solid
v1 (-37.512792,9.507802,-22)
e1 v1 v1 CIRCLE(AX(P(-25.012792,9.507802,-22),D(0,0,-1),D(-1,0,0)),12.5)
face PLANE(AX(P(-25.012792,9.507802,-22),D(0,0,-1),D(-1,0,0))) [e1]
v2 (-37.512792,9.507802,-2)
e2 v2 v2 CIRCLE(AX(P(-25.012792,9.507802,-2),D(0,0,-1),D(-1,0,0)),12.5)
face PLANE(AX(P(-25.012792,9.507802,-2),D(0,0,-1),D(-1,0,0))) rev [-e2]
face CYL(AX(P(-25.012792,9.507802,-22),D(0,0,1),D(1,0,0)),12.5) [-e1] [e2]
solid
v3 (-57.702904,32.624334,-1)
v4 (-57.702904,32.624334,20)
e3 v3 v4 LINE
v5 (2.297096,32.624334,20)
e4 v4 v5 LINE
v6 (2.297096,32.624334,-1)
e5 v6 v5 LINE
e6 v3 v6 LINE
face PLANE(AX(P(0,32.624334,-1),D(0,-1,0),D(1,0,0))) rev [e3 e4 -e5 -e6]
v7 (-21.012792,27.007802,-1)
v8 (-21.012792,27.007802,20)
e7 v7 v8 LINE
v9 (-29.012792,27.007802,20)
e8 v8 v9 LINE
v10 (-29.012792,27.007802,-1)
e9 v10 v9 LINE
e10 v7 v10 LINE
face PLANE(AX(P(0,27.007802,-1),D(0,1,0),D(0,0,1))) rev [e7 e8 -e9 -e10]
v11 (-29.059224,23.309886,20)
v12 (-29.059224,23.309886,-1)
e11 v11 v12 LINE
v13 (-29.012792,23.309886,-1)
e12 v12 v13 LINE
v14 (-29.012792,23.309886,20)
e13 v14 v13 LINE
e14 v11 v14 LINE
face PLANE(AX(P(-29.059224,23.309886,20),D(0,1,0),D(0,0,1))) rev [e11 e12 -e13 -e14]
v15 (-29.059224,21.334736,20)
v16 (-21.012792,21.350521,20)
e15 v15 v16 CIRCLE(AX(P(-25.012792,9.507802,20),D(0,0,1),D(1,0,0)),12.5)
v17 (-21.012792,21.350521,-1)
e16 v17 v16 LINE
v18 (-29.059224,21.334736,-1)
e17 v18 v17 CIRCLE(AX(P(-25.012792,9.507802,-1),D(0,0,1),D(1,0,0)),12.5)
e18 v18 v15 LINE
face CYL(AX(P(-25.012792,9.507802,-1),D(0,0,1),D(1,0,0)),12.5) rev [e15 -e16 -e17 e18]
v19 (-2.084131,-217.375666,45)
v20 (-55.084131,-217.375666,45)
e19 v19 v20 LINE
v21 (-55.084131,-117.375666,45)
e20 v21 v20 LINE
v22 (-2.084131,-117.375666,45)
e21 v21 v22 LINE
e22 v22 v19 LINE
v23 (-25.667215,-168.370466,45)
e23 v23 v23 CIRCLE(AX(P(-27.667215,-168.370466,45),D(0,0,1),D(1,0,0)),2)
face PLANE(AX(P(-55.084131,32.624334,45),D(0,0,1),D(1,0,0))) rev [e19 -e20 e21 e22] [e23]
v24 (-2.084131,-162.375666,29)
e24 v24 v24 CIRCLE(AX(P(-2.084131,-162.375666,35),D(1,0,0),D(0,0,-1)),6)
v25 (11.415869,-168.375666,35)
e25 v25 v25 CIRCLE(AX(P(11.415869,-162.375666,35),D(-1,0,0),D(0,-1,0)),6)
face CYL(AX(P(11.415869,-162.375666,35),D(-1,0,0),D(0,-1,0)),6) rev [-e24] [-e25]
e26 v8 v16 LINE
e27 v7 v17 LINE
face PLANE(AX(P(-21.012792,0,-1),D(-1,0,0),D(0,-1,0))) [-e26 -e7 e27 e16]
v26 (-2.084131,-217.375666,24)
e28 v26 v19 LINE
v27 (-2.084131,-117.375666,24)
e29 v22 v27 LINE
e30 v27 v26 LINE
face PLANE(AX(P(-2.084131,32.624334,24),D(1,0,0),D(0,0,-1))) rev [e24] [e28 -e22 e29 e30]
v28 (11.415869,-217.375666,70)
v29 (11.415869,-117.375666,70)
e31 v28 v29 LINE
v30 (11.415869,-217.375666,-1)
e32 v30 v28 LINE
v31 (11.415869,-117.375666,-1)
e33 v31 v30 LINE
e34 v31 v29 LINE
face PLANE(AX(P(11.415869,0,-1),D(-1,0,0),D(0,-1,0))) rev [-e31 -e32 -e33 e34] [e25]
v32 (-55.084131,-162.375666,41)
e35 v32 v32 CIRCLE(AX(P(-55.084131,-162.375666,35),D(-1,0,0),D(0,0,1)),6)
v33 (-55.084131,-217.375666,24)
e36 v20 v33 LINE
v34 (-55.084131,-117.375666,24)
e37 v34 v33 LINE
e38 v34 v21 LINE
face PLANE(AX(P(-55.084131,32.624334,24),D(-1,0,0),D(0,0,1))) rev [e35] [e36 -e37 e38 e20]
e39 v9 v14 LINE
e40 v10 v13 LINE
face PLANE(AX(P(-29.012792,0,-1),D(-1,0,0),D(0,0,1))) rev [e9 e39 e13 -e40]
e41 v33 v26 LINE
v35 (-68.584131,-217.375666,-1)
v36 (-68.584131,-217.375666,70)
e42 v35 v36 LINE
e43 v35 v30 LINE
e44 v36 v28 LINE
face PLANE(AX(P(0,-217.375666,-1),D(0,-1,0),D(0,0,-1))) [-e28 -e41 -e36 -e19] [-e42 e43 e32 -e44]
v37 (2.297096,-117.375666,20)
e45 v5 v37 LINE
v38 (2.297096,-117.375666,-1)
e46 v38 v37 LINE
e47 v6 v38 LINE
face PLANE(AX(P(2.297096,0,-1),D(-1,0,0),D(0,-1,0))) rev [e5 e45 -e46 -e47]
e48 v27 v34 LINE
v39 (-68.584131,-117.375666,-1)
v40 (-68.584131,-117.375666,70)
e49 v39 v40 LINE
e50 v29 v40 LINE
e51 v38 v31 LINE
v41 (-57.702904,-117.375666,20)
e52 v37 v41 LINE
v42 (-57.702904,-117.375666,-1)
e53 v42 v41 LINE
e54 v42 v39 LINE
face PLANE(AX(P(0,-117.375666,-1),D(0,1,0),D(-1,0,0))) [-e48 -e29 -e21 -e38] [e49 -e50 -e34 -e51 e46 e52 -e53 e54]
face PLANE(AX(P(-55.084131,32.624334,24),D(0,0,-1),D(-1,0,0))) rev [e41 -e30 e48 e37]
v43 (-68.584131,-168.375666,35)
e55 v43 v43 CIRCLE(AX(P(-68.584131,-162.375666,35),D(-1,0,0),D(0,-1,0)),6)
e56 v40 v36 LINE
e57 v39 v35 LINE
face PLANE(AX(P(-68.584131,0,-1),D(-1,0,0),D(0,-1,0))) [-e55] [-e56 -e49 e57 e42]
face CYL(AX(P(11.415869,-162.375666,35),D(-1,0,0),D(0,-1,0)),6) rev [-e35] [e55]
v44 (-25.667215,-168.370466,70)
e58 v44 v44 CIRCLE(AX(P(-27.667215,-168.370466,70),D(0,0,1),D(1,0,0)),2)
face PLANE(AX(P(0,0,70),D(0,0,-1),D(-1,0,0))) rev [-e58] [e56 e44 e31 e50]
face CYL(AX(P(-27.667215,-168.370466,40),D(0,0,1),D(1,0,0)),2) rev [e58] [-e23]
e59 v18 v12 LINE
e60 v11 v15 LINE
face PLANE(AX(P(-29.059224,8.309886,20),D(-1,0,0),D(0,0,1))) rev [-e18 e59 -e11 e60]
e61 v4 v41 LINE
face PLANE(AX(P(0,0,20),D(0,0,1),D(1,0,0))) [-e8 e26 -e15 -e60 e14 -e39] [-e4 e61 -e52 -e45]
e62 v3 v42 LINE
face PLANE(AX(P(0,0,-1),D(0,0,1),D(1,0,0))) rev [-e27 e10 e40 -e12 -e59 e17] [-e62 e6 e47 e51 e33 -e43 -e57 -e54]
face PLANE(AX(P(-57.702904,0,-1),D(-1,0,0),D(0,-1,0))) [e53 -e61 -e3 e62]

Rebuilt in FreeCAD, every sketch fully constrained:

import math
import FreeCAD as App
import Part
import Sketcher
from FreeCAD import Vector
Q = App.Units.Quantity


def add_polygon(sketch, points):
    """Adds a closed chain of lines whose ends are joined by coincident constraints."""
    first, n = sketch.GeometryCount, len(points)
    for a, b in zip(points, points[1:] + points[:1]):
        sketch.addGeometry(Part.LineSegment(App.Vector(*a, 0), App.Vector(*b, 0)), False)
    for i in range(n):
        sketch.addConstraint(Sketcher.Constraint("Coincident", first + i, 2, first + (i + 1) % n, 1))

doc = App.newDocument("Part")
body = doc.addObject("PartDesign::Body", "Body")

# Sketch on XY plane
sketch1 = body.newObject("Sketcher::SketchObject", "Sketch")
sketch1.AttachmentSupport = (doc.getObject("XY_Plane"), [""])
sketch1.MapMode = "FlatFace"
add_polygon(sketch1, [(2, 33), (-58, 33), (-58, -117), (-69, -117), (-69, -217), (11, -217), (11, -117), (2, -117)])  # lines 0-7
sketch1.addGeometry(Part.LineSegment(Vector(-21, 27, 0), Vector(-21, 21, 0)), False)  # 8
sketch1.addGeometry(Part.ArcOfCircle(Part.Circle(Vector(-25, 10, 0), Vector(0, 0, 1), 12), math.radians(109), math.radians(431)), False)  # 9
sketch1.addGeometry(Part.LineSegment(Vector(-29, 21, 0), Vector(-29, 27, 0)), False)  # 10
sketch1.addGeometry(Part.LineSegment(Vector(-29, 27, 0), Vector(-21, 27, 0)), False)  # 11
sketch1.addConstraint([
    Sketcher.Constraint("Coincident", 8, 2, 9, 2),
    Sketcher.Constraint("Coincident", 9, 1, 10, 1),
    Sketcher.Constraint("Coincident", 10, 2, 11, 1),
    Sketcher.Constraint("Coincident", 11, 2, 8, 1),
    Sketcher.Constraint("Horizontal", 0),
    Sketcher.Constraint("Vertical", 1),
    Sketcher.Constraint("Horizontal", 2),
    Sketcher.Constraint("Vertical", 3),
    Sketcher.Constraint("Horizontal", 4),
    Sketcher.Constraint("Vertical", 5),
    Sketcher.Constraint("Horizontal", 6),
    Sketcher.Constraint("Vertical", 7),
    Sketcher.Constraint("Vertical", 8),
    Sketcher.Constraint("Vertical", 10),
    Sketcher.Constraint("Horizontal", 11),
    Sketcher.Constraint("Horizontal", 2, 2, 5, 2),
    Sketcher.Constraint("Horizontal", 8, 2, 9, 1),
    Sketcher.Constraint("Radius", 9, Q("12.5 mm")),
    Sketcher.Constraint("DistanceX", 0, 2, 0, 1, Q("60 mm")),
    Sketcher.Constraint("DistanceX", 4, 1, 4, 2, Q("80 mm")),
    Sketcher.Constraint("DistanceX", 11, 1, 11, 2, Q("8 mm")),
    Sketcher.Constraint("DistanceY", 1, 2, 1, 1, Q("150 mm")),
    Sketcher.Constraint("DistanceY", 3, 2, 3, 1, Q("100 mm")),
    Sketcher.Constraint("DistanceY", 9, 3, 10, 2, Q("17.5 mm")),
    Sketcher.Constraint("DistanceY", -1, 1, 9, 3, Q("9.507802 mm")),
    Sketcher.Constraint("DistanceX", 2, 2, 2, 1, Q("10.881227 mm")),
    Sketcher.Constraint("DistanceX", 9, 3, -1, 1, Q("25.012792 mm")),
    Sketcher.Constraint("DistanceX", 2, 2, -1, 1, Q("68.584131 mm")),
    Sketcher.Constraint("DistanceY", -1, 1, 0, 2, Q("32.624334 mm")),
])
pad1 = body.newObject("PartDesign::Pad", "Pad")
pad1.Profile = sketch1
pad1.Type = "TwoLengths"
pad1.Length = 20
pad1.Length2 = 1

# Sketch on XY plane
sketch2 = body.newObject("Sketcher::SketchObject", "Sketch001")
sketch2.AttachmentSupport = (doc.getObject("XY_Plane"), [""])
sketch2.MapMode = "FlatFace"
sketch2.AttachmentOffset = App.Placement(Vector(0, 0, -1), App.Rotation())
add_polygon(sketch2, [(-21, 23), (-21, 8), (-29, 8), (-29, 23)])  # lines 0-3
sketch2.addConstraint([
    Sketcher.Constraint("Vertical", 0),
    Sketcher.Constraint("Horizontal", 1),
    Sketcher.Constraint("Vertical", 2),
    Sketcher.Constraint("Horizontal", 3),
    Sketcher.Constraint("DistanceX", 1, 2, 1, 1, Q("8 mm")),
    Sketcher.Constraint("DistanceY", 0, 2, 0, 1, Q("15 mm")),
    Sketcher.Constraint("DistanceX", 0, 2, -1, 1, Q("21.059224 mm")),
    Sketcher.Constraint("DistanceY", -1, 1, 0, 2, Q("8.309886 mm")),
])
pocket1 = body.newObject("PartDesign::Pocket", "Pocket")
pocket1.Profile = sketch2
pocket1.Type = "ThroughAll"
pocket1.Reversed = True

# Sketch on XY plane
sketch3 = body.newObject("Sketcher::SketchObject", "Sketch002")
sketch3.AttachmentSupport = (doc.getObject("XY_Plane"), [""])
sketch3.MapMode = "FlatFace"
sketch3.AttachmentOffset = App.Placement(Vector(0, 0, 20), App.Rotation())
add_polygon(sketch3, [(-69, -117), (-69, -217), (11, -217), (11, -117)])  # lines 0-3
sketch3.addConstraint([
    Sketcher.Constraint("Vertical", 0),
    Sketcher.Constraint("Horizontal", 1),
    Sketcher.Constraint("Vertical", 2),
    Sketcher.Constraint("Horizontal", 3),
    Sketcher.Constraint("DistanceX", 1, 1, 1, 2, Q("80 mm")),
    Sketcher.Constraint("DistanceY", 0, 2, 0, 1, Q("100 mm")),
    Sketcher.Constraint("DistanceX", 0, 2, -1, 1, Q("68.584131 mm")),
    Sketcher.Constraint("DistanceY", 0, 2, -1, 1, Q("217.375666 mm")),
])
pad2 = body.newObject("PartDesign::Pad", "Pad001")
pad2.Profile = sketch3
pad2.Length = 50

# Sketch on XZ plane
sketch4 = body.newObject("Sketcher::SketchObject", "Sketch003")
sketch4.AttachmentSupport = (doc.getObject("XZ_Plane"), [""])
sketch4.MapMode = "FlatFace"
sketch4.AttachmentOffset = App.Placement(Vector(0, 0, 217.375666), App.Rotation())
add_polygon(sketch4, [(-55, 45), (-55, 24), (-2, 24), (-2, 45)])  # lines 0-3
sketch4.addConstraint([
    Sketcher.Constraint("Vertical", 0),
    Sketcher.Constraint("Horizontal", 1),
    Sketcher.Constraint("Vertical", 2),
    Sketcher.Constraint("Horizontal", 3),
    Sketcher.Constraint("DistanceX", 1, 1, 1, 2, Q("53 mm")),
    Sketcher.Constraint("DistanceY", 0, 2, 0, 1, Q("21 mm")),
    Sketcher.Constraint("DistanceY", -1, 1, 0, 2, Q("24 mm")),
    Sketcher.Constraint("DistanceX", 0, 2, -1, 1, Q("55.084131 mm")),
])
pocket2 = body.newObject("PartDesign::Pocket", "Pocket001")
pocket2.Profile = sketch4
pocket2.Type = "ThroughAll"

# Sketch on YZ plane
sketch5 = body.newObject("Sketcher::SketchObject", "Sketch004")
sketch5.AttachmentSupport = (doc.getObject("YZ_Plane"), [""])
sketch5.MapMode = "FlatFace"
sketch5.AttachmentOffset = App.Placement(Vector(0, 0, -68.584131), App.Rotation())
sketch5.addGeometry(Part.Circle(Vector(-162, 35, 0), Vector(0, 0, 1), 6), False)
sketch5.addConstraint([
    Sketcher.Constraint("Diameter", 0, Q("12 mm")),
    Sketcher.Constraint("DistanceY", -1, 1, 0, 3, Q("35 mm")),
    Sketcher.Constraint("DistanceX", 0, 3, -1, 1, Q("162.375666 mm")),
])
pocket3 = body.newObject("PartDesign::Pocket", "Pocket002")
pocket3.Profile = sketch5
pocket3.Type = "ThroughAll"
pocket3.Reversed = True

# Sketch on XY plane
sketch6 = body.newObject("Sketcher::SketchObject", "Sketch005")
sketch6.AttachmentSupport = (doc.getObject("XY_Plane"), [""])
sketch6.MapMode = "FlatFace"
sketch6.AttachmentOffset = App.Placement(Vector(0, 0, 70), App.Rotation())
sketch6.addGeometry(Part.Circle(Vector(-27.7, -168.4, 0), Vector(0, 0, 1), 2), False)
sketch6.addConstraint([
    Sketcher.Constraint("Diameter", 0, Q("4 mm")),
    Sketcher.Constraint("DistanceX", 0, 3, -1, 1, Q("27.667215 mm")),
    Sketcher.Constraint("DistanceY", 0, 3, -1, 1, Q("168.370466 mm")),
])
pocket4 = body.newObject("PartDesign::Pocket", "Pocket003")
pocket4.Profile = sketch6
pocket4.Length = 30
body2 = doc.addObject("PartDesign::Body", "Body001")

# Sketch on XY plane
sketch7 = body2.newObject("Sketcher::SketchObject", "Sketch006")
sketch7.AttachmentSupport = (doc.getObject("XY_Plane001"), [""])
sketch7.MapMode = "FlatFace"
sketch7.AttachmentOffset = App.Placement(Vector(0, 0, -2), App.Rotation())
sketch7.addGeometry(Part.Circle(Vector(-25, 10, 0), Vector(0, 0, 1), 12), False)
sketch7.addConstraint([
    Sketcher.Constraint("Diameter", 0, Q("25 mm")),
    Sketcher.Constraint("DistanceY", -1, 1, 0, 3, Q("9.507802 mm")),
    Sketcher.Constraint("DistanceX", 0, 3, -1, 1, Q("25.012792 mm")),
])
pad3 = body2.newObject("PartDesign::Pad", "Pad002")
pad3.Profile = sketch7
pad3.Length = 20
pad3.Reversed = True

doc.recompute()
